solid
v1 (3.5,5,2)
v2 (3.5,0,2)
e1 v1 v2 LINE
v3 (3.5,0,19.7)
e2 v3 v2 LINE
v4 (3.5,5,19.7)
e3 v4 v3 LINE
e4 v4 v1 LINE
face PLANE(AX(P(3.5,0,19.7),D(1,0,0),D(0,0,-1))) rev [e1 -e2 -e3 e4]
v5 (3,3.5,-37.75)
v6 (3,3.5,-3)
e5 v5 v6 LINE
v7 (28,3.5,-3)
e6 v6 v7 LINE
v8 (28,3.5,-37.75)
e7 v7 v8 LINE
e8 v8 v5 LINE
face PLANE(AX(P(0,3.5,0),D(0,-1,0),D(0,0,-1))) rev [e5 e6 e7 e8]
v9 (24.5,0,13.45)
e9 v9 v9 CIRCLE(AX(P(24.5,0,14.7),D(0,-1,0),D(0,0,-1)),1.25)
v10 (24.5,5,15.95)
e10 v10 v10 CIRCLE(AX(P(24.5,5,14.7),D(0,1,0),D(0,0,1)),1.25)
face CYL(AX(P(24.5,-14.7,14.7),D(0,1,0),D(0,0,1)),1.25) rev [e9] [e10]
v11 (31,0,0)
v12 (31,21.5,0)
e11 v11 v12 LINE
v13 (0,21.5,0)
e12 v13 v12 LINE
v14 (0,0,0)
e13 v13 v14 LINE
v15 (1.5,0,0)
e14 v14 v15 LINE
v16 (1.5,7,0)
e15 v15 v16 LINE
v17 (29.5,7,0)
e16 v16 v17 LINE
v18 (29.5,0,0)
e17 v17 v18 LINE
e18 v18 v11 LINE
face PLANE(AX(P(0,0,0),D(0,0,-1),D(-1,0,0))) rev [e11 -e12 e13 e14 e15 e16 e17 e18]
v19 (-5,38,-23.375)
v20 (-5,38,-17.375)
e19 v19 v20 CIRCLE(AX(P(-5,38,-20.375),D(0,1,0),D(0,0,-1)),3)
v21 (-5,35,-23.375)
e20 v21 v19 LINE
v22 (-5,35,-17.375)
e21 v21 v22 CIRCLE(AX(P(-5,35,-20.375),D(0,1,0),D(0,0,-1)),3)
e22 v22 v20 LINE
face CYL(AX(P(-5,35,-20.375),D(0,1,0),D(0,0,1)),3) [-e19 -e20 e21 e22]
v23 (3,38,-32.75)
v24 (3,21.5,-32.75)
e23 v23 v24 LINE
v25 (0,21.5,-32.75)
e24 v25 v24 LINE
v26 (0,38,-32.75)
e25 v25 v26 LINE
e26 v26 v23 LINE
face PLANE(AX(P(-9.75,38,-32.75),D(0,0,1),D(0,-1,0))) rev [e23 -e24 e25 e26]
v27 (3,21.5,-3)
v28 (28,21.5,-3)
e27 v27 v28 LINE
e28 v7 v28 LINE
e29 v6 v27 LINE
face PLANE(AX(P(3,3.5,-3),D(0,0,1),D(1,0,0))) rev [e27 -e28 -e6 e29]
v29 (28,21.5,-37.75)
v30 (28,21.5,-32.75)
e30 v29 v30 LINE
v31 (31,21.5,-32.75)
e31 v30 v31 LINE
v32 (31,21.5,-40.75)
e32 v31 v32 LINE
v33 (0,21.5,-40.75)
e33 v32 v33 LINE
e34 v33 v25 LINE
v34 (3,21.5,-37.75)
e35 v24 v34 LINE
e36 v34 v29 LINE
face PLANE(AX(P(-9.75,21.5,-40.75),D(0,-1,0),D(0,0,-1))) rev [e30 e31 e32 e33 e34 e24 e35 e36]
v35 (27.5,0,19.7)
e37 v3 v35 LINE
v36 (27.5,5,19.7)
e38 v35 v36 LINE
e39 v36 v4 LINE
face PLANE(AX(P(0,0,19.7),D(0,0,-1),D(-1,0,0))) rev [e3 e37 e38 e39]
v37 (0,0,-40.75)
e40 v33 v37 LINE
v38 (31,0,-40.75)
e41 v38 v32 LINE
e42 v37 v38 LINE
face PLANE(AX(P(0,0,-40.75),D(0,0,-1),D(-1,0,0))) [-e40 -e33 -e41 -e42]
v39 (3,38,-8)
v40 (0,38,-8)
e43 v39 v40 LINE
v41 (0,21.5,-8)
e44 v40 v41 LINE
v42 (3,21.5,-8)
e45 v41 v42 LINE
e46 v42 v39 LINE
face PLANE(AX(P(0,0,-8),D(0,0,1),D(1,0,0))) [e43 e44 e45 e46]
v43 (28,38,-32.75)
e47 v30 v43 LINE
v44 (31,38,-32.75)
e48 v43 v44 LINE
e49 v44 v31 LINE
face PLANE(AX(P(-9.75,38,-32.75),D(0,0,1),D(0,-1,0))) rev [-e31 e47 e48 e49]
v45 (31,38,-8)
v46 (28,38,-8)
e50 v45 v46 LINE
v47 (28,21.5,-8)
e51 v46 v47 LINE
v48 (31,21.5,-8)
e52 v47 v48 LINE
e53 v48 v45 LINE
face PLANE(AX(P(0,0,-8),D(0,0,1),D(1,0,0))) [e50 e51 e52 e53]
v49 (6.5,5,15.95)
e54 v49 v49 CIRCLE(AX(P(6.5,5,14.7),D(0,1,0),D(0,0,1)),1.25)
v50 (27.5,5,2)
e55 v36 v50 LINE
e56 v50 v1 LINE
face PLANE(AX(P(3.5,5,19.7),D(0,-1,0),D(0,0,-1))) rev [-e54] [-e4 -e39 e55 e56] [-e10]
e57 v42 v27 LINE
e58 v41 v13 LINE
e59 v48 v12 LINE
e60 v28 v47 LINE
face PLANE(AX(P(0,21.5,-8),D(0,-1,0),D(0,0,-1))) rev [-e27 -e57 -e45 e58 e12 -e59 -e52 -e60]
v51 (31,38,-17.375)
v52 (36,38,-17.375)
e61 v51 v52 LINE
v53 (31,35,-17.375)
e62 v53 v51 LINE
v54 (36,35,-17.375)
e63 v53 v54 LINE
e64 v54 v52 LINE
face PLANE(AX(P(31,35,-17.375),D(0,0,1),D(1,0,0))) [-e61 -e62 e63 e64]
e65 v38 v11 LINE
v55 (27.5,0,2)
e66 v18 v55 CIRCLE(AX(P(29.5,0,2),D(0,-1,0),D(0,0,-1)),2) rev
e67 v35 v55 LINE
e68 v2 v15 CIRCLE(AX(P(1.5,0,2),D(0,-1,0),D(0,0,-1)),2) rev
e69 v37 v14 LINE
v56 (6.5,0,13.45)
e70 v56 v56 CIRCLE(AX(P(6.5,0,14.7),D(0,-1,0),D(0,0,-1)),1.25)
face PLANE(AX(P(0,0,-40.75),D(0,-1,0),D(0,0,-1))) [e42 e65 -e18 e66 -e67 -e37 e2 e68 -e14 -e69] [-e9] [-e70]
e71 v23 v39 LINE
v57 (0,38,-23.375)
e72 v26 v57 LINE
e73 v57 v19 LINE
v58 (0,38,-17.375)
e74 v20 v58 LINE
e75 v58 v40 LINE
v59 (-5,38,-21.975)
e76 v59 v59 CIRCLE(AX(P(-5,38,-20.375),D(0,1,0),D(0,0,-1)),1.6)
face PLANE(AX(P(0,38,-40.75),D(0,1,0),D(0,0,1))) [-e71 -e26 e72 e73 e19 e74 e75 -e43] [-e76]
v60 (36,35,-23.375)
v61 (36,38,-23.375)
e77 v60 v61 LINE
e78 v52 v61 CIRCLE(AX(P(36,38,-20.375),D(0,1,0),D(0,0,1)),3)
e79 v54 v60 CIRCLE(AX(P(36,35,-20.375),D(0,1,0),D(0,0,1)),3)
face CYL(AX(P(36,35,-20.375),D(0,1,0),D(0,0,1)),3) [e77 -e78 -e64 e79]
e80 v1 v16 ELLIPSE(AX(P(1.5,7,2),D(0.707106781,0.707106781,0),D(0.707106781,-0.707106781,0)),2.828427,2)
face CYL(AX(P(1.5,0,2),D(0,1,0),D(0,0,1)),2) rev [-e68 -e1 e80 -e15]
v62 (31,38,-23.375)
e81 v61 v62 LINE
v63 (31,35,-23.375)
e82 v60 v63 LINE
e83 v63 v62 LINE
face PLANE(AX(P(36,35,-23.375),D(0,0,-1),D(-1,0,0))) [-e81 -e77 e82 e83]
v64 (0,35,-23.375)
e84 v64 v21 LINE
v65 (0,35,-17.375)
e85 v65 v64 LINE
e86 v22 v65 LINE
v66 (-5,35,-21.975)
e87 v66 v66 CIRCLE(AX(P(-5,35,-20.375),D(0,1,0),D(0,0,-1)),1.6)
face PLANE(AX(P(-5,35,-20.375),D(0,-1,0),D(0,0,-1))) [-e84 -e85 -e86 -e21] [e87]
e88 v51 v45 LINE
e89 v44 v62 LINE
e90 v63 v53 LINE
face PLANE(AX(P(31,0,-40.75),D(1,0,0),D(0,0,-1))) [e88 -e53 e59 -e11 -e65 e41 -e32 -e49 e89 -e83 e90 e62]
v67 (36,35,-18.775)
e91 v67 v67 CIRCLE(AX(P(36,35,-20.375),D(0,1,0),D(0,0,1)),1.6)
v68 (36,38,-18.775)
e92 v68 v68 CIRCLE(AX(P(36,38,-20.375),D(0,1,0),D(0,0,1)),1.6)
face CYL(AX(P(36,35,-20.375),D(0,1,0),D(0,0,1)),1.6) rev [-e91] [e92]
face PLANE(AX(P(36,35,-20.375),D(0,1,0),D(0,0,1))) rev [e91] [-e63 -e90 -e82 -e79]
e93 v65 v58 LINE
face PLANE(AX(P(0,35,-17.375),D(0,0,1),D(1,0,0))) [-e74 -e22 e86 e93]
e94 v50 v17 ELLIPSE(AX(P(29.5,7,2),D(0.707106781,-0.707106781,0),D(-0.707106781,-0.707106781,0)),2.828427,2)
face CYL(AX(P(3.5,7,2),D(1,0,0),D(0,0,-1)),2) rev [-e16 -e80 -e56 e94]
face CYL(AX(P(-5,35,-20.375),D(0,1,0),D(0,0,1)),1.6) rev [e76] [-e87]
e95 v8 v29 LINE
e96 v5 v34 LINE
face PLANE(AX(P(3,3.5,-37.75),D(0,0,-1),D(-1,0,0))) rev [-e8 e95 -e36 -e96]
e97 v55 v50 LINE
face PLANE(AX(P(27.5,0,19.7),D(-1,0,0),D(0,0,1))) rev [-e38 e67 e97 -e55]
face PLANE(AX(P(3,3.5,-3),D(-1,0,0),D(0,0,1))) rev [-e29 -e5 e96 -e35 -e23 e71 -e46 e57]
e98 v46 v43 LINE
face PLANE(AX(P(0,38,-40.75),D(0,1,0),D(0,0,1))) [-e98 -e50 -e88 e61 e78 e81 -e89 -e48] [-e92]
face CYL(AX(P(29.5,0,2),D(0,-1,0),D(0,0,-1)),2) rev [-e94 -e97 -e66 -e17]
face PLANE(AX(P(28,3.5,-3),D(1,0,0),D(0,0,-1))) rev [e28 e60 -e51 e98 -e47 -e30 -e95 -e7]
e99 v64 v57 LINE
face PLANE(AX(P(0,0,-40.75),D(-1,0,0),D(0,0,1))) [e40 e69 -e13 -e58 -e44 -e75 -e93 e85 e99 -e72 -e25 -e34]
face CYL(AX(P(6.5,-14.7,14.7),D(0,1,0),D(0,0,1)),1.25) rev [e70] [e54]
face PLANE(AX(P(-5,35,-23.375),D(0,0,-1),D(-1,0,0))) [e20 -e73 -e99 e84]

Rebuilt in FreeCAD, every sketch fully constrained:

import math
import FreeCAD as App
import Part
import Sketcher

V = App.Vector
Q = App.Units.Quantity


def edges_at(feature, points):
    """Names of the edges that pass closest to the given points."""
    edges = feature.Shape.Edges
    near = lambda p: min(range(len(edges)), key=lambda i: edges[i].distToShape(Part.Vertex(*p))[0])
    return sorted({f"Edge{near(p) + 1}" for p in points})


def add_polygon(sketch, points):
    """Adds a closed chain of lines whose ends are joined by coincident constraints."""
    first, n = sketch.GeometryCount, len(points)
    for a, b in zip(points, points[1:] + points[:1]):
        sketch.addGeometry(Part.LineSegment(App.Vector(*a, 0), App.Vector(*b, 0)), False)
    for i in range(n):
        sketch.addConstraint(Sketcher.Constraint("Coincident", first + i, 2, first + (i + 1) % n, 1))

doc = App.newDocument("Part")
body = doc.addObject("PartDesign::Body", "Body")

sketch1 = doc.addObject("Sketcher::SketchObject", "Sketch")
body.addObject(sketch1)
sketch1.AttachmentSupport = (doc.XY_Plane, [""])
sketch1.MapMode = "FlatFace"
add_polygon(sketch1, [(0, 38), (0, 0), (31, 0), (31, 38)])
sketch1.addConstraint([
    Sketcher.Constraint("Vertical", 0),
    Sketcher.Constraint("Horizontal", 1),
    Sketcher.Constraint("Vertical", 2),
    Sketcher.Constraint("Horizontal", 3),
    Sketcher.Constraint("Coincident", 0, 2, -1, 1),
    Sketcher.Constraint("DistanceX", 1, 1, 1, 2, Q("31 mm")),
    Sketcher.Constraint("DistanceY", 0, 2, 0, 1, Q("38 mm")),
])
pad1 = doc.addObject("PartDesign::Pad", "Pad")
body.addObject(pad1)
pad1.Profile = sketch1
pad1.Length = 40.75
pad1.Reversed = True

sketch2 = doc.addObject("Sketcher::SketchObject", "Sketch001")
body.addObject(sketch2)
sketch2.AttachmentSupport = (doc.YZ_Plane, [""])
sketch2.MapMode = "FlatFace"
sketch2.AttachmentOffset = App.Placement(V(0, 0, 31), App.Rotation())
add_polygon(sketch2, [(38, -33), (22, -33), (22, -41), (38, -41)])
sketch2.addConstraint([
    Sketcher.Constraint("Horizontal", 0),
    Sketcher.Constraint("Vertical", 1),
    Sketcher.Constraint("Horizontal", 2),
    Sketcher.Constraint("Vertical", 3),
    Sketcher.Constraint("DistanceY", 1, 2, 1, 1, Q("8 mm")),
    Sketcher.Constraint("DistanceX", 0, 2, 0, 1, Q("16.5 mm")),
    Sketcher.Constraint("DistanceX", -1, 1, 2, 2, Q("38 mm")),
    Sketcher.Constraint("DistanceY", 0, 2, -1, 1, Q("32.75 mm")),
])
pocket1 = doc.addObject("PartDesign::Pocket", "Pocket")
body.addObject(pocket1)
pocket1.Profile = sketch2
pocket1.Length = 40.75

sketch3 = doc.addObject("Sketcher::SketchObject", "Sketch002")
body.addObject(sketch3)
sketch3.AttachmentSupport = (doc.XZ_Plane, [""])
sketch3.MapMode = "FlatFace"
sketch3.AttachmentOffset = App.Placement(V(0, 0, -38), App.Rotation())
add_polygon(sketch3, [(3, -38), (3, -3), (28, -3), (28, -38)])
sketch3.addConstraint([
    Sketcher.Constraint("Vertical", 0),
    Sketcher.Constraint("Horizontal", 1),
    Sketcher.Constraint("Vertical", 2),
    Sketcher.Constraint("Horizontal", 3),
    Sketcher.Constraint("DistanceX", 1, 1, 1, 2, Q("25 mm")),
    Sketcher.Constraint("DistanceX", -1, 1, 0, 2, Q("3 mm")),
    Sketcher.Constraint("DistanceY", 0, 2, -1, 1, Q("3 mm")),
    Sketcher.Constraint("DistanceY", 0, 1, 0, 2, Q("34.75 mm")),
])
pocket2 = doc.addObject("PartDesign::Pocket", "Pocket001")
body.addObject(pocket2)
pocket2.Profile = sketch3
pocket2.Length = 34.5
pocket2.Reversed = True

sketch4 = doc.addObject("Sketcher::SketchObject", "Sketch003")
body.addObject(sketch4)
sketch4.AttachmentSupport = (doc.XY_Plane, [""])
sketch4.MapMode = "FlatFace"
sketch4.addGeometry(Part.Circle(V(16, 38, 0), V(0, 0, 1), 12), False)
sketch4.addConstraint([
    Sketcher.Constraint("Diameter", 0, Q("25 mm")),
    Sketcher.Constraint("DistanceY", -1, 1, 0, 3, Q("38 mm")),
    Sketcher.Constraint("DistanceX", -1, 1, 0, 3, Q("15.5 mm")),
])
pocket3 = doc.addObject("PartDesign::Pocket", "Pocket002")
body.addObject(pocket3)
pocket3.Profile = sketch4
pocket3.Length = 34.5

sketch5 = doc.addObject("Sketcher::SketchObject", "Sketch004")
body.addObject(sketch5)
sketch5.AttachmentSupport = (doc.XZ_Plane, [""])
sketch5.MapMode = "FlatFace"
sketch5.AttachmentOffset = App.Placement(V(0, 0, -38), App.Rotation())
sketch5.addGeometry([
    Part.LineSegment(V(36, -23.4, 0), V(31, -23.4, 0)),
    Part.LineSegment(V(31, -23.4, 0), V(31, -17.4, 0)),
    Part.LineSegment(V(31, -17.4, 0), V(36, -17.4, 0)),
    Part.ArcOfCircle(Part.Circle(V(36, -20.4, 0), V(0, 0, 1), 3), math.radians(-90), math.radians(90)),
    Part.Circle(V(36, -20.4, 0), V(0, 0, 1), 1.6),
    Part.LineSegment(V(0, -17.4, 0), V(0, -23.4, 0)),
    Part.LineSegment(V(0, -23.4, 0), V(-5, -23.4, 0)),
    Part.ArcOfCircle(Part.Circle(V(-5, -20.4, 0), V(0, 0, 1), 3), math.radians(90), math.radians(270)),
    Part.LineSegment(V(-5, -17.4, 0), V(0, -17.4, 0)),
    Part.Circle(V(-5, -20.4, 0), V(0, 0, 1), 1.6),
], False)
sketch5.addConstraint([
    Sketcher.Constraint("Coincident", 0, 2, 1, 1),
    Sketcher.Constraint("Coincident", 1, 2, 2, 1),
    Sketcher.Constraint("Tangent", 2, 2, 3, 2),
    Sketcher.Constraint("Tangent", 3, 1, 0, 1),
    Sketcher.Constraint("Coincident", 5, 2, 6, 1),
    Sketcher.Constraint("Tangent", 6, 2, 7, 2),
    Sketcher.Constraint("Tangent", 7, 1, 8, 1),
    Sketcher.Constraint("Coincident", 8, 2, 5, 1),
    Sketcher.Constraint("Horizontal", 0),
    Sketcher.Constraint("Vertical", 1),
    Sketcher.Constraint("Horizontal", 2),
    Sketcher.Constraint("Vertical", 5),
    Sketcher.Constraint("Horizontal", 6),
    Sketcher.Constraint("Horizontal", 8),
    Sketcher.Constraint("Coincident", 4, 3, 3, 3),
    Sketcher.Constraint("Coincident", 9, 3, 7, 3),
    Sketcher.Constraint("Equal", 3, 7),
    Sketcher.Constraint("Equal", 4, 9),
    Sketcher.Constraint("PointOnObject", 5, 2, -2),
    Sketcher.Constraint("Horizontal", 4, 3, 7, 3),
    Sketcher.Constraint("Equal", 2, 6),
    Sketcher.Constraint("Radius", 3, Q("3 mm")),
    Sketcher.Constraint("Diameter", 4, Q("3.2 mm")),
    Sketcher.Constraint("DistanceX", 0, 2, 0, 1, Q("5 mm")),
    Sketcher.Constraint("DistanceX", -1, 1, 3, 3, Q("36 mm")),
    Sketcher.Constraint("DistanceY", 3, 3, -1, 1, Q("20.375 mm")),
])
pad2 = doc.addObject("PartDesign::Pad", "Pad001")
body.addObject(pad2)
pad2.Profile = sketch5
pad2.Length = 3

sketch6 = doc.addObject("Sketcher::SketchObject", "Sketch005")
body.addObject(sketch6)
sketch6.AttachmentSupport = (doc.XY_Plane, [""])
sketch6.MapMode = "FlatFace"
add_polygon(sketch6, [(4, 5), (4, 0), (28, 0), (28, 5)])
sketch6.addConstraint([
    Sketcher.Constraint("Vertical", 0),
    Sketcher.Constraint("Horizontal", 1),
    Sketcher.Constraint("Vertical", 2),
    Sketcher.Constraint("Horizontal", 3),
    Sketcher.Constraint("PointOnObject", 0, 2, -1),
    Sketcher.Constraint("DistanceX", 1, 1, 1, 2, Q("24 mm")),
    Sketcher.Constraint("DistanceY", 0, 2, 0, 1, Q("5 mm")),
    Sketcher.Constraint("DistanceX", -1, 1, 0, 2, Q("3.5 mm")),
])
pad3 = doc.addObject("PartDesign::Pad", "Pad002")
body.addObject(pad3)
pad3.Profile = sketch6
pad3.Length = 19.7
doc.recompute()

fillet = doc.addObject("PartDesign::Fillet", "Fillet")
body.addObject(fillet)
fillet.Base = (pad3, edges_at(pad3, [(3.5, 2.5, 0), (27.5, 2.5, 0), (15.5, 5, 0)]))
fillet.Radius = 2

sketch7 = doc.addObject("Sketcher::SketchObject", "Sketch006")
body.addObject(sketch7)
sketch7.AttachmentSupport = (doc.XZ_Plane, [""])
sketch7.MapMode = "FlatFace"
sketch7.AttachmentOffset = App.Placement(V(0, 0, -5), App.Rotation())
sketch7.addGeometry([
    Part.Circle(V(6.5, 14.7, 0), V(0, 0, 1), 1.2),
    Part.Circle(V(24.5, 14.7, 0), V(0, 0, 1), 1.2),
], False)
sketch7.addConstraint([
    Sketcher.Constraint("Equal", 0, 1),
    Sketcher.Constraint("Horizontal", 0, 3, 1, 3),
    Sketcher.Constraint("Diameter", 0, Q("2.5 mm")),
    Sketcher.Constraint("DistanceX", 0, 3, 1, 3, Q("18 mm")),
    Sketcher.Constraint("DistanceX", -1, 1, 0, 3, Q("6.5 mm")),
    Sketcher.Constraint("DistanceY", -1, 1, 0, 3, Q("14.7 mm")),
])
pocket4 = doc.addObject("PartDesign::Pocket", "Pocket003")
body.addObject(pocket4)
pocket4.Profile = sketch7
pocket4.Length = 19.7
pocket4.Reversed = True

sketch8 = doc.addObject("Sketcher::SketchObject", "Sketch007")
body.addObject(sketch8)
sketch8.AttachmentSupport = (doc.XY_Plane, [""])
sketch8.MapMode = "FlatFace"
add_polygon(sketch8, [(0, 38), (0, 22), (31, 22), (31, 38)])
sketch8.addConstraint([
    Sketcher.Constraint("Vertical", 0),
    Sketcher.Constraint("Horizontal", 1),
    Sketcher.Constraint("Vertical", 2),
    Sketcher.Constraint("Horizontal", 3),
    Sketcher.Constraint("PointOnObject", 0, 2, -2),
    Sketcher.Constraint("DistanceX", 1, 1, 1, 2, Q("31 mm")),
    Sketcher.Constraint("DistanceY", 0, 2, 0, 1, Q("16.5 mm")),
    Sketcher.Constraint("DistanceY", -1, 1, 2, 2, Q("38 mm")),
])
pocket5 = doc.addObject("PartDesign::Pocket", "Pocket004")
body.addObject(pocket5)
pocket5.Profile = sketch8
pocket5.Length = 8

doc.recompute()
